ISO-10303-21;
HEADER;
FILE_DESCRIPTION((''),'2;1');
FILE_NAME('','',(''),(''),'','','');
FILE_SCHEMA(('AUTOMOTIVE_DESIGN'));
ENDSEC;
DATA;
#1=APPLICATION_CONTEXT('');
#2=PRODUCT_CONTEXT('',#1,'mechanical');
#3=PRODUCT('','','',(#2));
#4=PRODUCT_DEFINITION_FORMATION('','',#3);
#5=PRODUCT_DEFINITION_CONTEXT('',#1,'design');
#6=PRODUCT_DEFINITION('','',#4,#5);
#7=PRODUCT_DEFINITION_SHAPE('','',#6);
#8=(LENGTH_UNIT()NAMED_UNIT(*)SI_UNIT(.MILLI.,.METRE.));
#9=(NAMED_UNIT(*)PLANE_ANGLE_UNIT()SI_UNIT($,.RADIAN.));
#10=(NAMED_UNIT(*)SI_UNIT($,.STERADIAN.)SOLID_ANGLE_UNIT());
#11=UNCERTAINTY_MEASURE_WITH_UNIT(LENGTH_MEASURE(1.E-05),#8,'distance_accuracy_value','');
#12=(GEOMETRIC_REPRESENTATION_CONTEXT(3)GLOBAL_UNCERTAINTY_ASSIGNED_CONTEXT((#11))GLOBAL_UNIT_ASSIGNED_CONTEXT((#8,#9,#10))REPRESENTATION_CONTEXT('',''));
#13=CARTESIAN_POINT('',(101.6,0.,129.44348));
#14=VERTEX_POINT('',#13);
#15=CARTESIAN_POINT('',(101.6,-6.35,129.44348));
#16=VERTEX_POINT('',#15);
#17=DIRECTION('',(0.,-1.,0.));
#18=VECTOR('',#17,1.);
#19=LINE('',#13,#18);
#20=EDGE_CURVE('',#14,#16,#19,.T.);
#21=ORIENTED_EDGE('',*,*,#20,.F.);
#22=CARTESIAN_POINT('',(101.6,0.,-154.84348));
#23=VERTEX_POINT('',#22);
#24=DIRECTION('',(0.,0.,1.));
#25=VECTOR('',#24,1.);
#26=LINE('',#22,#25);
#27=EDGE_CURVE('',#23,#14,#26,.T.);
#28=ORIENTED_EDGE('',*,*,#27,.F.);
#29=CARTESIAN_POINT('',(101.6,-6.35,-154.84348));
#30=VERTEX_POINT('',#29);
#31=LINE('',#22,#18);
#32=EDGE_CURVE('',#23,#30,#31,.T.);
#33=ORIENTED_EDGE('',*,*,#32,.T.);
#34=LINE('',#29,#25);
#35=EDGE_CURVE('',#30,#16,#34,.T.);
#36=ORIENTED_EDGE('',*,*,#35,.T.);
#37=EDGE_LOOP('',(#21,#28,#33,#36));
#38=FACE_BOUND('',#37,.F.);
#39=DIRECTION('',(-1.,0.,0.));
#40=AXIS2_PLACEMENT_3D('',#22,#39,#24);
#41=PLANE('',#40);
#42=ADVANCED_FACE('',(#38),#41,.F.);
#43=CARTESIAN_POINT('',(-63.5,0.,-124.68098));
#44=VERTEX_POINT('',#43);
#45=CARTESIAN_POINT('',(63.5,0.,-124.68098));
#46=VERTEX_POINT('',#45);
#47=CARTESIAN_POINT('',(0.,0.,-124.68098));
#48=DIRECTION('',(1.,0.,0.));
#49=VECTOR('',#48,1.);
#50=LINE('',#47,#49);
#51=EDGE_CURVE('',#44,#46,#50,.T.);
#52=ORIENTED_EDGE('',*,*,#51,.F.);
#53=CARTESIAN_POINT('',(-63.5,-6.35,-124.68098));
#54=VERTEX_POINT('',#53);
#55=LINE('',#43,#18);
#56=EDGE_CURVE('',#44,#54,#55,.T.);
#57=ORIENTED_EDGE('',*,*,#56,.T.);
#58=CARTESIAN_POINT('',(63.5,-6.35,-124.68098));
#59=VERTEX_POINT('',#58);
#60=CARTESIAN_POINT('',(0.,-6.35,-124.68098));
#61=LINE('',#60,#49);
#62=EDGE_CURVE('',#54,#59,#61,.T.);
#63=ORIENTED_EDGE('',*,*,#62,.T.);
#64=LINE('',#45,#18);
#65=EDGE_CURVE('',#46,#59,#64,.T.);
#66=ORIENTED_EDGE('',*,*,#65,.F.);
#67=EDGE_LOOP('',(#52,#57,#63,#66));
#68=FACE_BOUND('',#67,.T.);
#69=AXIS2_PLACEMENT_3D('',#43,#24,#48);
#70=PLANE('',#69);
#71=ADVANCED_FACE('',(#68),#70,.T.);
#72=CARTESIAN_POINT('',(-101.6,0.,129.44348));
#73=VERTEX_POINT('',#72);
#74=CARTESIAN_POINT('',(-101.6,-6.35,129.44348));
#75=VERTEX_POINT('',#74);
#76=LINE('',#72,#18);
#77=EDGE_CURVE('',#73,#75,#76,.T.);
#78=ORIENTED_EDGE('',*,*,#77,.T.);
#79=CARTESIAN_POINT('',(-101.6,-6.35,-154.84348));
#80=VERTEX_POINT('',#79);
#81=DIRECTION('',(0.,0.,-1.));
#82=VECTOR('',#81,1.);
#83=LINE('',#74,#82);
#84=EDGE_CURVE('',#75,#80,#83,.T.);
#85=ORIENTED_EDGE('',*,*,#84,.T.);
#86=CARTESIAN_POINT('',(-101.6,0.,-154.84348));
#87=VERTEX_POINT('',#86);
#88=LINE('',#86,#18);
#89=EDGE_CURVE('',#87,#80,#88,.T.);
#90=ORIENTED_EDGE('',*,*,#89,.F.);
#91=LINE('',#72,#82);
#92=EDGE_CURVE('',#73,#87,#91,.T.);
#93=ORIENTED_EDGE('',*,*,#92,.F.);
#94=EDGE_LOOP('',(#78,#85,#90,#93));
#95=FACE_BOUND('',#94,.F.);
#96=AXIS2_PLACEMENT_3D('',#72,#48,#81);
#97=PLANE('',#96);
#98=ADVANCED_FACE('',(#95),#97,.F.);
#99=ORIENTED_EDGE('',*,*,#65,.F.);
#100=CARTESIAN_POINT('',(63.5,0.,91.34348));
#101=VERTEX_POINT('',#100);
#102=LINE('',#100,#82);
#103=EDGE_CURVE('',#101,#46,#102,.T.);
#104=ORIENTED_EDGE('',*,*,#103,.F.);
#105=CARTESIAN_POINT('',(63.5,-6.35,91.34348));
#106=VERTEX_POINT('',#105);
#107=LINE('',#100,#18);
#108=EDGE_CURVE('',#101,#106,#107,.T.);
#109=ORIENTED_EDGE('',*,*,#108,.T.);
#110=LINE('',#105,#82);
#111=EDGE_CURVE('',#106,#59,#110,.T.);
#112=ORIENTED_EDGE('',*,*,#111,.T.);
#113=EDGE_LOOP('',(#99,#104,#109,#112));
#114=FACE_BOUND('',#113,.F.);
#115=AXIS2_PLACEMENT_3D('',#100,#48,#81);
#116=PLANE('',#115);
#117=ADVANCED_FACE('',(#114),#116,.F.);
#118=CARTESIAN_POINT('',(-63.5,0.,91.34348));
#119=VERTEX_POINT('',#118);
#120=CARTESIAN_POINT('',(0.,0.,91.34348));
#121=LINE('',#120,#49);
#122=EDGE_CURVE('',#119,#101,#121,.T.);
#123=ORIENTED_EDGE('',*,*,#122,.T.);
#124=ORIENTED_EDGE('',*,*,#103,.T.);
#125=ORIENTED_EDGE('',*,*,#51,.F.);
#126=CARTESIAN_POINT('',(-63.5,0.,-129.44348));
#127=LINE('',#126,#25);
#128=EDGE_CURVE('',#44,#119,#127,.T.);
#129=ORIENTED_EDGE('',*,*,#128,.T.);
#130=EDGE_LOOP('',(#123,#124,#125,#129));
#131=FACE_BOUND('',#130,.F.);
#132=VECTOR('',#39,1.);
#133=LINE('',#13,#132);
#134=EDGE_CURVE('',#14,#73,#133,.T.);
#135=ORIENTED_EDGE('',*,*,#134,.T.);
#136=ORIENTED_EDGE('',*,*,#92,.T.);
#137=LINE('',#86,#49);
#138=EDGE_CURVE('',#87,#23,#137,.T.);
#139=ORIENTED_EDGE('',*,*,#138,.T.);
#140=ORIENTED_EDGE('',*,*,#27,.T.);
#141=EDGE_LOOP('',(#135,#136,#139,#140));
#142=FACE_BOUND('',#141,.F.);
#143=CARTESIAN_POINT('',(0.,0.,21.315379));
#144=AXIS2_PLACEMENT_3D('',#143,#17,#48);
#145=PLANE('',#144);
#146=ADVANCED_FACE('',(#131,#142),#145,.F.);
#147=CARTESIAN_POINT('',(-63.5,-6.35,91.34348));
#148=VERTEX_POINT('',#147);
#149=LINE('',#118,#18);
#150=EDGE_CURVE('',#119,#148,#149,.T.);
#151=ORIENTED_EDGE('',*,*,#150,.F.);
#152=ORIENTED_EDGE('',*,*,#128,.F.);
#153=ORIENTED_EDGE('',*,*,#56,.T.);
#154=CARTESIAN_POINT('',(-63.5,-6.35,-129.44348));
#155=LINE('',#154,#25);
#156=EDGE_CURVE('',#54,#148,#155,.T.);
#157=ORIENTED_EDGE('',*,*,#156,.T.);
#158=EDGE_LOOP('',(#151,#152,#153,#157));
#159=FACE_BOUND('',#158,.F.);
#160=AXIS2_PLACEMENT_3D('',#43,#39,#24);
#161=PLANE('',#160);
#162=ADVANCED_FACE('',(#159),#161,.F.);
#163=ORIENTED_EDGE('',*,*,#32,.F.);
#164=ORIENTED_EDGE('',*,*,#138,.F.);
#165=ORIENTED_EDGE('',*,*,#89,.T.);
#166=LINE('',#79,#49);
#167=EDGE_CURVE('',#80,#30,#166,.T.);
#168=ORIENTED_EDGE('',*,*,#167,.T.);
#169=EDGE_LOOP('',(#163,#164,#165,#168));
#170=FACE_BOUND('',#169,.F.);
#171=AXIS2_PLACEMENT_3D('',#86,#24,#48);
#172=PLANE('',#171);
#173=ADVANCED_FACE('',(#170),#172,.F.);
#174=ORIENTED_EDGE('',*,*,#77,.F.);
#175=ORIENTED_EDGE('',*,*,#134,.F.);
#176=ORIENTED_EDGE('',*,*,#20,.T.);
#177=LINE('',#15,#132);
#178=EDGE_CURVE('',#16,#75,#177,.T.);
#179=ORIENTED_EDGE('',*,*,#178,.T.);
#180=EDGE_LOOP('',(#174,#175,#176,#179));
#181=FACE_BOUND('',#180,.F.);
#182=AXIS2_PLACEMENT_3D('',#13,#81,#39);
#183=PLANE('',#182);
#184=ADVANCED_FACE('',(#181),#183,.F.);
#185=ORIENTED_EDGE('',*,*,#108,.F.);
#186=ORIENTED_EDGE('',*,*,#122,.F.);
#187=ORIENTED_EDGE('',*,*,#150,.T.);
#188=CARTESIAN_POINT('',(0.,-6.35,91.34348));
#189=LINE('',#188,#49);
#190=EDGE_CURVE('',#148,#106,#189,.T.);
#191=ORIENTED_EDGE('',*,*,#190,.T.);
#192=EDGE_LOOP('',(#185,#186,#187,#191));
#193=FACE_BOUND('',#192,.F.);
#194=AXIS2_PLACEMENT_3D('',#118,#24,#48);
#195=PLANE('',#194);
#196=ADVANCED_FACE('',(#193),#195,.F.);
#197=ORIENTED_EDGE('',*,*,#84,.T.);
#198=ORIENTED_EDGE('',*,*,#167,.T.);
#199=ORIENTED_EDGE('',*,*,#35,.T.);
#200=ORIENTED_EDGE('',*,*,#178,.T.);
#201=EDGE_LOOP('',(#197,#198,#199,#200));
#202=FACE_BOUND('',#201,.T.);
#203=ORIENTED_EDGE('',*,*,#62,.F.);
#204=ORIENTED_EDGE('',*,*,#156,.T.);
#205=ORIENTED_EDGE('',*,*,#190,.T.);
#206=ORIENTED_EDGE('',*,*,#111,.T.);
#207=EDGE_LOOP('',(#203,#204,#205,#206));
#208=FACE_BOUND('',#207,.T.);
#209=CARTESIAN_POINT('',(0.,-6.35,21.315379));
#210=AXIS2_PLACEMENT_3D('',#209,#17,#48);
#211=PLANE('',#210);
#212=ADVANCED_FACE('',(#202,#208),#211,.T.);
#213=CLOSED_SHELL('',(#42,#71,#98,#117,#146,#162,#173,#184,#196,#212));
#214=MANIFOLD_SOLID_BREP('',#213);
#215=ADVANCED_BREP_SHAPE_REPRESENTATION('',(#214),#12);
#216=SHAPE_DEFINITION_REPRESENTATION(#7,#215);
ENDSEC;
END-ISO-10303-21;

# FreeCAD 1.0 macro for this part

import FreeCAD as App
import Part
import Sketcher
from FreeCAD import Vector
Q = App.Units.Quantity

doc = App.newDocument("Part")
body = doc.addObject("PartDesign::Body", "Body")

sketch1 = doc.addObject("Sketcher::SketchObject", "Sketch")
body.addObject(sketch1)
sketch1.AttachmentSupport = (doc.XZ_Plane, [""])
sketch1.MapMode = "FlatFace"
sketch1.addGeometry([
    Part.LineSegment(Vector(101.6, 129.44348, 0), Vector(-101.6, 129.44348, 0)),
    Part.LineSegment(Vector(-101.6, 129.44348, 0), Vector(-101.6, -154.84348, 0)),
    Part.LineSegment(Vector(-101.6, -154.84348, 0), Vector(101.6, -154.84348, 0)),
    Part.LineSegment(Vector(101.6, -154.84348, 0), Vector(101.6, 129.44348, 0)),
    Part.LineSegment(Vector(-63.5, 91.34348, 0), Vector(63.5, 91.34348, 0)),
    Part.LineSegment(Vector(63.5, 91.34348, 0), Vector(63.5, -124.68098, 0)),
    Part.LineSegment(Vector(63.5, -124.68098, 0), Vector(-63.5, -124.68098, 0)),
    Part.LineSegment(Vector(-63.5, -124.68098, 0), Vector(-63.5, 91.34348, 0)),
], False)
sketch1.addConstraint([
    Sketcher.Constraint("Coincident", 0, 2, 1, 1),
    Sketcher.Constraint("Coincident", 1, 2, 2, 1),
    Sketcher.Constraint("Coincident", 2, 2, 3, 1),
    Sketcher.Constraint("Coincident", 3, 2, 0, 1),
    Sketcher.Constraint("Coincident", 4, 2, 5, 1),
    Sketcher.Constraint("Coincident", 5, 2, 6, 1),
    Sketcher.Constraint("Coincident", 6, 2, 7, 1),
    Sketcher.Constraint("Coincident", 7, 2, 4, 1),
    Sketcher.Constraint("Horizontal", 0),
    Sketcher.Constraint("Vertical", 1),
    Sketcher.Constraint("Horizontal", 2),
    Sketcher.Constraint("Vertical", 3),
    Sketcher.Constraint("Horizontal", 4),
    Sketcher.Constraint("Vertical", 5),
    Sketcher.Constraint("Horizontal", 6),
    Sketcher.Constraint("Vertical", 7),
    Sketcher.Constraint("DistanceX", 0, 2, 0, 1, Q("8 in")),
    Sketcher.Constraint("DistanceX", 4, 1, 4, 2, Q("5 in")),
    Sketcher.Constraint("DistanceX", 0, 2, -1, 1, Q("4 in")),
    Sketcher.Constraint("DistanceX", -1, 1, 4, 2, Q("2.5 in")),
    Sketcher.Constraint("DistanceY", 4, 2, 3, 2, Q("1.5 in")),
    Sketcher.Constraint("DistanceY", 1, 2, 1, 1, Q("11.1924 in")),
    Sketcher.Constraint("DistanceY", 5, 2, 5, 1, Q("8.5049 in")),
    Sketcher.Constraint("DistanceY", -1, 1, 0, 2, Q("5.0962 in")),
])
pad1 = doc.addObject("PartDesign::Pad", "Pad")
body.addObject(pad1)
pad1.Profile = sketch1
pad1.Length = Q("0.25 in")

doc.recompute()
